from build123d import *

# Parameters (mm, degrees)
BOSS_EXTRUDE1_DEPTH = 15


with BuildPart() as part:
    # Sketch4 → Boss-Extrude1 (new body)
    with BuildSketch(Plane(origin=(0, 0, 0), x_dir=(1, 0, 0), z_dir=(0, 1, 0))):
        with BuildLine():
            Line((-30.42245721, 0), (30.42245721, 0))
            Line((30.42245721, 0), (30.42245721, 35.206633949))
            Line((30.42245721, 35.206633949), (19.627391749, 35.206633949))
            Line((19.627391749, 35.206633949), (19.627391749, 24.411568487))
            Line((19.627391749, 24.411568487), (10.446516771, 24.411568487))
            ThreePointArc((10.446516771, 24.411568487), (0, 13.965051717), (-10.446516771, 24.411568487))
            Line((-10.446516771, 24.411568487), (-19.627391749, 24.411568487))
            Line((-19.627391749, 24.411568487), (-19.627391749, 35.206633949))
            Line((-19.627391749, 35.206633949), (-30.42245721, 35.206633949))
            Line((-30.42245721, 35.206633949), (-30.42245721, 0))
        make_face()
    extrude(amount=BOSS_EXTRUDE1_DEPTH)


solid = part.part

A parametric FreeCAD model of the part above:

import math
import FreeCAD as App
import Part
import Sketcher
from FreeCAD import Vector

doc = App.newDocument("Part")
body = doc.addObject("PartDesign::Body", "Body")

# Sketch on XZ plane
sketch1 = doc.addObject("Sketcher::SketchObject", "Sketch")
body.addObject(sketch1)
sketch1.AttachmentSupport = (doc.XZ_Plane, [""])
sketch1.MapMode = "FlatFace"
sketch1.addGeometry([
    Part.LineSegment(Vector(-30.422457, 0, 0), Vector(30.422457, 0, 0)),  # 0
    Part.LineSegment(Vector(30.422457, 0, 0), Vector(30.422457, -35.206634, 0)),  # 1
    Part.LineSegment(Vector(30.422457, -35.206634, 0), Vector(19.627392, -35.206634, 0)),  # 2
    Part.LineSegment(Vector(19.627392, -35.206634, 0), Vector(19.627392, -24.411568, 0)),  # 3
    Part.LineSegment(Vector(19.627392, -24.411568, 0), Vector(10.446517, -24.411568, 0)),  # 4
    Part.ArcOfCircle(Part.Circle(Vector(0, -24.411568, 0), Vector(0, 0, 1), 10.446517), math.radians(0), math.radians(180)),  # 5
    Part.LineSegment(Vector(-10.446517, -24.411568, 0), Vector(-19.627392, -24.411568, 0)),  # 6
    Part.LineSegment(Vector(-19.627392, -24.411568, 0), Vector(-19.627392, -35.206634, 0)),  # 7
    Part.LineSegment(Vector(-19.627392, -35.206634, 0), Vector(-30.422457, -35.206634, 0)),  # 8
    Part.LineSegment(Vector(-30.422457, -35.206634, 0), Vector(-30.422457, 0, 0)),  # 9
], False)
sketch1.addConstraint([
    Sketcher.Constraint("Coincident", 0, 2, 1, 1),
    Sketcher.Constraint("Coincident", 1, 2, 2, 1),
    Sketcher.Constraint("Coincident", 2, 2, 3, 1),
    Sketcher.Constraint("Coincident", 3, 2, 4, 1),
    Sketcher.Constraint("Coincident", 4, 2, 5, 1),
    Sketcher.Constraint("Coincident", 5, 2, 6, 1),
    Sketcher.Constraint("Coincident", 6, 2, 7, 1),
    Sketcher.Constraint("Coincident", 7, 2, 8, 1),
    Sketcher.Constraint("Coincident", 8, 2, 9, 1),
    Sketcher.Constraint("Coincident", 9, 2, 0, 1),
    Sketcher.Constraint("Horizontal", 0),
    Sketcher.Constraint("Vertical", 1),
    Sketcher.Constraint("Horizontal", 2),
    Sketcher.Constraint("Vertical", 3),
    Sketcher.Constraint("Horizontal", 4),
    Sketcher.Constraint("Horizontal", 6),
    Sketcher.Constraint("Vertical", 7),
    Sketcher.Constraint("Horizontal", 8),
    Sketcher.Constraint("Vertical", 9),
    Sketcher.Constraint("Symmetric", 0, 2, 9, 2, -1, 1),
    Sketcher.Constraint("Symmetric", 4, 2, 5, 2, -2),
    Sketcher.Constraint("Symmetric", 2, 2, 7, 2, -2),
    Sketcher.Constraint("Horizontal", 5, 3, 3, 2),
    Sketcher.Constraint("Equal", 8, 3),
    Sketcher.Constraint("Radius", 5, 10.446517),
    Sketcher.Constraint("DistanceX", 0, 1, 0, 2, 60.844914),
    Sketcher.Constraint("DistanceX", 2, 2, 2, 1, 10.795065),
    Sketcher.Constraint("DistanceY", 1, 2, 1, 1, 35.206634),
])
pad1 = doc.addObject("PartDesign::Pad", "Pad")
body.addObject(pad1)
pad1.Profile = sketch1
pad1.Length = 15
pad1.Reversed = True

doc.recompute()
